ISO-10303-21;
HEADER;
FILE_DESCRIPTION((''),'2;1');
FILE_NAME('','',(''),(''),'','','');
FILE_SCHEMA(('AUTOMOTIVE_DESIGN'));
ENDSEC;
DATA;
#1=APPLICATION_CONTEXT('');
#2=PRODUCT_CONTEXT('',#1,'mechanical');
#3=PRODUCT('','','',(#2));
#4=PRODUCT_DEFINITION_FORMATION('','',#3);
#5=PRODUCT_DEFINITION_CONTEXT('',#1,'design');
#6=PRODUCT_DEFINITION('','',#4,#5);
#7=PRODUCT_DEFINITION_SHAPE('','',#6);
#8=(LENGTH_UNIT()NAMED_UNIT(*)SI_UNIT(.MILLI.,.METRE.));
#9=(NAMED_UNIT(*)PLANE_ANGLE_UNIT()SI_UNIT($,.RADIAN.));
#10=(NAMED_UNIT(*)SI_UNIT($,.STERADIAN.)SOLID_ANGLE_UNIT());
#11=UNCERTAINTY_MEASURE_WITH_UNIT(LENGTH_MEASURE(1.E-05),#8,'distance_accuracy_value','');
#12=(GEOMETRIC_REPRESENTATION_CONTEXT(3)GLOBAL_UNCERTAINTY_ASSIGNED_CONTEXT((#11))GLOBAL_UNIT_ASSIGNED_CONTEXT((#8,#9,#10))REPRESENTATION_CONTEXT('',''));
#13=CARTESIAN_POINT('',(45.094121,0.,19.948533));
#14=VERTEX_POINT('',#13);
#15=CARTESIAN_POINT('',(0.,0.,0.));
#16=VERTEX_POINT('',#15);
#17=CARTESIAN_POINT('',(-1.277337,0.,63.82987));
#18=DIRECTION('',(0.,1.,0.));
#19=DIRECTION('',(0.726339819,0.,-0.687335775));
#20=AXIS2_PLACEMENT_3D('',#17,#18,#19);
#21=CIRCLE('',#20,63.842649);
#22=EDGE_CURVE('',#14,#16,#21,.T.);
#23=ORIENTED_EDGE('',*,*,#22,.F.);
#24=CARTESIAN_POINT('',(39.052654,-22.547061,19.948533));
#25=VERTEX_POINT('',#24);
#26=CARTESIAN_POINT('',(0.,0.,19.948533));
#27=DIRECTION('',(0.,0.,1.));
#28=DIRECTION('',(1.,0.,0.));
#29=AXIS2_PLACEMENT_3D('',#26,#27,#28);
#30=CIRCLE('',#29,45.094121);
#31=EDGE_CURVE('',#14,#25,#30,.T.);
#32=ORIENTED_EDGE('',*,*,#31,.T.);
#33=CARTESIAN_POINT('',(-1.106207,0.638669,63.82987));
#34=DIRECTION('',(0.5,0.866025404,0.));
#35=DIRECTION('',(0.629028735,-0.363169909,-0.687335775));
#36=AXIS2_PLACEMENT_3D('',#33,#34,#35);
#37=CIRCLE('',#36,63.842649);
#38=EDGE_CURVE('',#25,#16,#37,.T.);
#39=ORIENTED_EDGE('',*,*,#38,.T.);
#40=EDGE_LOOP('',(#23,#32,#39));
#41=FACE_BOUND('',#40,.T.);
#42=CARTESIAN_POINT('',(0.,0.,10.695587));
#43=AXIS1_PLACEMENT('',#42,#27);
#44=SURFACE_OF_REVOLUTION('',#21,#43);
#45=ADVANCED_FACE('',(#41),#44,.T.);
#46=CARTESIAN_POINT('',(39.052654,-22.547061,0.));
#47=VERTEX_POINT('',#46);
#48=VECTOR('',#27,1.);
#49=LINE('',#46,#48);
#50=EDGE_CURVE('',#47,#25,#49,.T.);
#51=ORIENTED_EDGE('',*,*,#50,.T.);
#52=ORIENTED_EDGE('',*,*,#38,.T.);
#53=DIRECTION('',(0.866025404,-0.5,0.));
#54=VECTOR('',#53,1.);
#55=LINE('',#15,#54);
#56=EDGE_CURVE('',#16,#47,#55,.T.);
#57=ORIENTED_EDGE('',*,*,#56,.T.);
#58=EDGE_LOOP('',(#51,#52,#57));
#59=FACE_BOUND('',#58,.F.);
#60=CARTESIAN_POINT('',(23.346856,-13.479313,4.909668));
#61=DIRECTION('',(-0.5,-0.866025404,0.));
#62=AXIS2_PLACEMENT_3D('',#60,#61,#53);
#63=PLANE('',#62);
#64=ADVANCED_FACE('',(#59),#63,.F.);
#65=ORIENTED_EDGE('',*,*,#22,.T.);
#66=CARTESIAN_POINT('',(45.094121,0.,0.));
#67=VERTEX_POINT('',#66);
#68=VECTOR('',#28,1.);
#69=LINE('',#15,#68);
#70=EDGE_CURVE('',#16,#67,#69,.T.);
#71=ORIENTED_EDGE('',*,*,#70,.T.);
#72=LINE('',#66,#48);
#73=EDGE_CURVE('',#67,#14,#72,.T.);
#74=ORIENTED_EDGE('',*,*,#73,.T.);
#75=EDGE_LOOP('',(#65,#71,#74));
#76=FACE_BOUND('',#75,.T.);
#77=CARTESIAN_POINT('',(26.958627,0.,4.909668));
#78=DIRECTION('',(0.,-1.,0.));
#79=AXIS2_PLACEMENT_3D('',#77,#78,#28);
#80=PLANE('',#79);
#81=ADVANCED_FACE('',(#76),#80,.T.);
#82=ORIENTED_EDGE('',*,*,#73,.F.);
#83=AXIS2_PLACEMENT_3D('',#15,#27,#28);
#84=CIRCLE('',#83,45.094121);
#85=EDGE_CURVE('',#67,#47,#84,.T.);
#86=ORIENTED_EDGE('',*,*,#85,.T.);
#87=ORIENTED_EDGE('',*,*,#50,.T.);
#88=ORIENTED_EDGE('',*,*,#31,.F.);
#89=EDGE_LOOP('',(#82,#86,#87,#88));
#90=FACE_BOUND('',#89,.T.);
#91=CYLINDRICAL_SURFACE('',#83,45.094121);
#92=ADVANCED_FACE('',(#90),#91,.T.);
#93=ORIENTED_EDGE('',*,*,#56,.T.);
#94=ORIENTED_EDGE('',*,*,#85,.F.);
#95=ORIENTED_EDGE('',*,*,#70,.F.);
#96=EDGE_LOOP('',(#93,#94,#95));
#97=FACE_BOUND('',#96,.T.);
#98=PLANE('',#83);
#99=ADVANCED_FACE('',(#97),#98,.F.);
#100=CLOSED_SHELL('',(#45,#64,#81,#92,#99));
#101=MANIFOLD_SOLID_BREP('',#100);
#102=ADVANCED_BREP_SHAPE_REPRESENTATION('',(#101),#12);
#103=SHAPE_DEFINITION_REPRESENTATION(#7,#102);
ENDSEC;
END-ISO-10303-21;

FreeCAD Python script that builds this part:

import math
import FreeCAD as App
import Part
import Sketcher
from FreeCAD import Vector
Q = App.Units.Quantity

doc = App.newDocument("Part")
params = doc.addObject("Spreadsheet::Sheet", "Params")
for row, (alias, value) in enumerate([
    ("revolution_angle", "330 deg"),
], start=1):
    params.set(f"A{row}", alias)
    params.set(f"B{row}", "=" + value)
    params.setAlias(f"B{row}", alias)

body = doc.addObject("PartDesign::Body", "Body")

sketch1 = body.newObject("Sketcher::SketchObject", "Sketch")
sketch1.AttachmentSupport = (doc.getObject("XZ_Plane"), [""])
sketch1.MapMode = "FlatFace"
sketch1.addGeometry([
    Part.ArcOfCircle(Part.Circle(Vector(-1, 64, 0), Vector(0, 0, 1), 64), math.radians(-89), math.radians(-43)),
    Part.LineSegment(Vector(0, 0, 0), Vector(45, 0, 0)),
    Part.LineSegment(Vector(45, 0, 0), Vector(45, 20, 0)),
], False)
sketch1.addConstraint([
    Sketcher.Constraint("Coincident", 0, 1, 1, 1),
    Sketcher.Constraint("Coincident", 1, 2, 2, 1),
    Sketcher.Constraint("Coincident", 2, 2, 0, 2),
    Sketcher.Constraint("Horizontal", 1),
    Sketcher.Constraint("Vertical", 2),
    Sketcher.Constraint("Coincident", 0, 1, -1, 1),
    Sketcher.Constraint("Radius", 0, Q("63.842649 mm")),
    Sketcher.Constraint("DistanceX", 1, 1, 1, 2, Q("45.094121 mm")),
    Sketcher.Constraint("DistanceY", 2, 1, 2, 2, Q("19.948533 mm")),
])
revolution = body.newObject("PartDesign::Revolution", "Revolution")
revolution.Profile = sketch1
revolution.ReferenceAxis = (sketch1, ["V_Axis"])
revolution.setExpression("Angle", "Params.revolution_angle")

doc.recompute()
